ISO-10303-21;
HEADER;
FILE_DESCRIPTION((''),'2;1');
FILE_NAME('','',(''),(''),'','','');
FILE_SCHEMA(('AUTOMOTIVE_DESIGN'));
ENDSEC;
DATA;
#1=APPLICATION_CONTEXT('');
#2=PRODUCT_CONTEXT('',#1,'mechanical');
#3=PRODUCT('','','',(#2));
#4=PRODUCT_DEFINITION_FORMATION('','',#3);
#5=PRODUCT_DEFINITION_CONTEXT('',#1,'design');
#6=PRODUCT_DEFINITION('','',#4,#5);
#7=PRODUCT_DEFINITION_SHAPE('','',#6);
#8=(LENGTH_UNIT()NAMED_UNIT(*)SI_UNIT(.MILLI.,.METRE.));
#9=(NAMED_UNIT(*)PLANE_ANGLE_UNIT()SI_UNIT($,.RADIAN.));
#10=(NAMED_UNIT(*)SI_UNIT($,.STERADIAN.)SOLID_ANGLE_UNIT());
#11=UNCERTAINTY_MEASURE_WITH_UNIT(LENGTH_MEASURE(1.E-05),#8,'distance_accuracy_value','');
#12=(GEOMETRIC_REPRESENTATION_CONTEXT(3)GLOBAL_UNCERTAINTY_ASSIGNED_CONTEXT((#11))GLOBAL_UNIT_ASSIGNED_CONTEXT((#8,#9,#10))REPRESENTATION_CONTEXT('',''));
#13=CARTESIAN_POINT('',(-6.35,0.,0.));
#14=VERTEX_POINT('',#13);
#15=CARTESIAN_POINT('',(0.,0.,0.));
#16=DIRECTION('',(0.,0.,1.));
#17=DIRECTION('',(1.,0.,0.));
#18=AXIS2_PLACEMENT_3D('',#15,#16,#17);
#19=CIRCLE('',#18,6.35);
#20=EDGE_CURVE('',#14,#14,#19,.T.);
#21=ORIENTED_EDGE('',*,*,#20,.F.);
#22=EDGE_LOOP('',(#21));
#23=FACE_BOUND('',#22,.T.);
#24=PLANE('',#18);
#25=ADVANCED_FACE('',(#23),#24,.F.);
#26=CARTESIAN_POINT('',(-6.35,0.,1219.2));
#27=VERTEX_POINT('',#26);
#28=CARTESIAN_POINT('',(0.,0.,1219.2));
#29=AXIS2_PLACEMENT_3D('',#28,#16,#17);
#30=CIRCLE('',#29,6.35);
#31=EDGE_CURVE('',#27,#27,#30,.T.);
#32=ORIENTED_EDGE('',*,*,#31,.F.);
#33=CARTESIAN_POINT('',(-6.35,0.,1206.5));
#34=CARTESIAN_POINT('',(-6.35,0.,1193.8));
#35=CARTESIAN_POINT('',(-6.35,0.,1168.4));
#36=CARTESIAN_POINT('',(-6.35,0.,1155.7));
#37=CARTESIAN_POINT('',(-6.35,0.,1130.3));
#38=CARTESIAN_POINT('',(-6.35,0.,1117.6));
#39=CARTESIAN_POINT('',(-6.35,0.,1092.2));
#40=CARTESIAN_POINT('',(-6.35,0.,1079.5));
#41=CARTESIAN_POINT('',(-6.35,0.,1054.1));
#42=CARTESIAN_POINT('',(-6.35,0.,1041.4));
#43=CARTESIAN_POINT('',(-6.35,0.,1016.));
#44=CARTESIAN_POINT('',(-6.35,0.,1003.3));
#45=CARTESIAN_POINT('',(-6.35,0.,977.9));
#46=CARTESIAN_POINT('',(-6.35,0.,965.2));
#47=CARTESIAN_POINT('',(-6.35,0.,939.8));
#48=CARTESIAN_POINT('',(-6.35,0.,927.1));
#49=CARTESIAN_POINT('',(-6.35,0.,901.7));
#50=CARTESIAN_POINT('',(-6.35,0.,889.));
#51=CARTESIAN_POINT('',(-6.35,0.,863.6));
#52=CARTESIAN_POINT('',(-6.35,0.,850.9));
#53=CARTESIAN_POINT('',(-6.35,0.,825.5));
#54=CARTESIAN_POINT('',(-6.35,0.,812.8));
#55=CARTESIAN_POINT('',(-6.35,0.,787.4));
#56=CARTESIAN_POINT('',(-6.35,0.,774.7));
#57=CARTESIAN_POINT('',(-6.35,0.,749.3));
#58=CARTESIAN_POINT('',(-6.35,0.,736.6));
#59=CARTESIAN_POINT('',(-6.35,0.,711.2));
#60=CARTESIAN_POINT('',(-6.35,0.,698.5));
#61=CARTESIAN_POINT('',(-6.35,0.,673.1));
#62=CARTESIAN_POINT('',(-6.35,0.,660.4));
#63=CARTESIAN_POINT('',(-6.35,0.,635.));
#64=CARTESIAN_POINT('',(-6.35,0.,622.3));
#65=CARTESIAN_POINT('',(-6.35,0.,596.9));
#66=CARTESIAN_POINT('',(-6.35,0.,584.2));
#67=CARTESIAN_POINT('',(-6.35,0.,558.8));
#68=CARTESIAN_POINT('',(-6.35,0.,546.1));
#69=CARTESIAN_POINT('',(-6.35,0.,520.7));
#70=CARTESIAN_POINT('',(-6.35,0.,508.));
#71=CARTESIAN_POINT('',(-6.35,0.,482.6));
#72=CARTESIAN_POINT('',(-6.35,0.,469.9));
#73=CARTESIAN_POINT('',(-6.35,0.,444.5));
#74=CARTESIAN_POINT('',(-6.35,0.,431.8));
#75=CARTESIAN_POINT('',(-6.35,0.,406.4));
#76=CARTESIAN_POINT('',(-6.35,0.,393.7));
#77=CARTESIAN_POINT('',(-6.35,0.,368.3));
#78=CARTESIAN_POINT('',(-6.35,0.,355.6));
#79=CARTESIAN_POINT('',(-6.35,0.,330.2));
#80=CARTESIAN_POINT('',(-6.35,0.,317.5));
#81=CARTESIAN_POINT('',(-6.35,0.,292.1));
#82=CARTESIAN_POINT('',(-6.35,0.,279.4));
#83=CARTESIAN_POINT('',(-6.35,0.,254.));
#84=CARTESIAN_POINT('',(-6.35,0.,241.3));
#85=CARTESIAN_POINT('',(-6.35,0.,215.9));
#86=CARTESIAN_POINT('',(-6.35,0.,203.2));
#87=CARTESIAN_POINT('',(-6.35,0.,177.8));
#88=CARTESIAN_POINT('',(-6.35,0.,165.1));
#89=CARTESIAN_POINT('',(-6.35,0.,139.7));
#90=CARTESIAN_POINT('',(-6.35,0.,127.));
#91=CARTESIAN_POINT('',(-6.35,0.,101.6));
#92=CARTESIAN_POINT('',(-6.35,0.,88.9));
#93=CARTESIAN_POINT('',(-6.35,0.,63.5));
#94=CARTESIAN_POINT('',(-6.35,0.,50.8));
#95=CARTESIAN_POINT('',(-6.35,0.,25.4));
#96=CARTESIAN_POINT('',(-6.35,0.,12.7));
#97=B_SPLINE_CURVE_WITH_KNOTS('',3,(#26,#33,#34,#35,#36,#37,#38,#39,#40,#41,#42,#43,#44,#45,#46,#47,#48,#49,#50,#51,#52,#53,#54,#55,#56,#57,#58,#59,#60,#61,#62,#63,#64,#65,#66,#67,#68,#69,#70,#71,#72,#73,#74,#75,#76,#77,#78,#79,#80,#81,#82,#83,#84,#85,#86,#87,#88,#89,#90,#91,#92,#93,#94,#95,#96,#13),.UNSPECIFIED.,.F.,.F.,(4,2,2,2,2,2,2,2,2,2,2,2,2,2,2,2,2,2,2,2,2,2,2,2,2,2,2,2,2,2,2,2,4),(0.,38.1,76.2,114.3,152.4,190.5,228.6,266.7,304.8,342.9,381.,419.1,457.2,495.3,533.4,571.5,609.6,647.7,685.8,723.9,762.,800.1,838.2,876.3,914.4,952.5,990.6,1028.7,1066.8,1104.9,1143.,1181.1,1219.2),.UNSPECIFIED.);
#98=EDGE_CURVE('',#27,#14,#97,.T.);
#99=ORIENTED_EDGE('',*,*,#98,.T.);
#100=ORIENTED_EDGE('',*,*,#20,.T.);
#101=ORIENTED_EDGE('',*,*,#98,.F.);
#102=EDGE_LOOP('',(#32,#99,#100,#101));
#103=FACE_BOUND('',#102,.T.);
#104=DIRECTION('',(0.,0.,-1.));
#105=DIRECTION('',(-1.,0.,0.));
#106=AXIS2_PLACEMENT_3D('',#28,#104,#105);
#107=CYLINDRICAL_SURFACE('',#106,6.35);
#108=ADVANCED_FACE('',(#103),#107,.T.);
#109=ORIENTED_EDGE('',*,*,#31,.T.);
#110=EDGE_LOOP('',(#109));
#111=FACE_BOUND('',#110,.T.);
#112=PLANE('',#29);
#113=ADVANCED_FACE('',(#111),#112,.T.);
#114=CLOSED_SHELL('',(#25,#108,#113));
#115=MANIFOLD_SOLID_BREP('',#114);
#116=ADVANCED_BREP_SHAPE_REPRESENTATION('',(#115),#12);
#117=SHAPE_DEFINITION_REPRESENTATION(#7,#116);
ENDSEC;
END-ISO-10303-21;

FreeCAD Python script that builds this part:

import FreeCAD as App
import Part
import Sketcher

V = App.Vector
Q = App.Units.Quantity

doc = App.newDocument("Part")
params = doc.addObject("Spreadsheet::Sheet", "Params")
for row, (alias, value) in enumerate([
    ("sketch1_diameter", "0.5 in"),
    ("pad1_length", "48 in"),
], start=1):
    params.set(f"A{row}", alias)
    params.set(f"B{row}", "=" + value)
    params.setAlias(f"B{row}", alias)

body = doc.addObject("PartDesign::Body", "Body")

# Sketch on XY plane
sketch1 = body.newObject("Sketcher::SketchObject", "Sketch")
sketch1.AttachmentSupport = (doc.getObject("XY_Plane"), [""])
sketch1.MapMode = "FlatFace"
sketch1.addGeometry(Part.Circle(V(0, 0, 0), V(0, 0, 1), 6), False)
sketch1.addConstraint(Sketcher.Constraint("Coincident", 0, 3, -1, 1))
sketch1.addConstraint(Sketcher.Constraint("Diameter", 0, Q("0.5 in")))
sketch1.setExpression("Constraints[1]", "Params.sketch1_diameter")
pad1 = body.newObject("PartDesign::Pad", "Pad")
pad1.Profile = sketch1
pad1.setExpression("Length", "Params.pad1_length")

doc.recompute()
